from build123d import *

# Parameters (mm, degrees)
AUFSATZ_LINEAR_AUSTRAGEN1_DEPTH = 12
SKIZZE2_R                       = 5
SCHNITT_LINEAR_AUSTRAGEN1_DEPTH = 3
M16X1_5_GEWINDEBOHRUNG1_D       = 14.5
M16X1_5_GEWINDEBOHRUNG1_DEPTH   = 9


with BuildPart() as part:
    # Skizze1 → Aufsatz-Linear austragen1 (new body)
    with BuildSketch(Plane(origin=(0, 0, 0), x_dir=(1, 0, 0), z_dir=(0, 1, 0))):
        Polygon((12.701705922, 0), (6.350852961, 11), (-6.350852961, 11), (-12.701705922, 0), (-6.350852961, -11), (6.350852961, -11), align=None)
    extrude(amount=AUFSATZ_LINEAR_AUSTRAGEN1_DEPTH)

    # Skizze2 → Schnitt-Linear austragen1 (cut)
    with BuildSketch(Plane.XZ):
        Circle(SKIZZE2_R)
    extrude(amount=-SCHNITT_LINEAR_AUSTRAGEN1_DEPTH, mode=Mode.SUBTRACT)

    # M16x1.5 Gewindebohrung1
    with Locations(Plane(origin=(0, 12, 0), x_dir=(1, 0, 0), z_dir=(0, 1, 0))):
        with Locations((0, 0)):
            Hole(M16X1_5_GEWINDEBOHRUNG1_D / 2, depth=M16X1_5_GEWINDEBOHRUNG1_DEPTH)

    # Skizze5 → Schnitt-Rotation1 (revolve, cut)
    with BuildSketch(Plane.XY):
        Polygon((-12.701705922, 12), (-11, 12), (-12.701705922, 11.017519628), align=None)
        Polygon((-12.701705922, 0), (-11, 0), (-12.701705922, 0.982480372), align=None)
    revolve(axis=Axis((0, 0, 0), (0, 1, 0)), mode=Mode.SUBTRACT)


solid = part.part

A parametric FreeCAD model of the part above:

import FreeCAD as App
import Part
import Sketcher

V = App.Vector
Q = App.Units.Quantity

doc = App.newDocument("Part")
body = doc.addObject("PartDesign::Body", "Body")

# Sketch on XZ plane
sketch1 = body.newObject("Sketcher::SketchObject", "Sketch")
sketch1.AttachmentSupport = (doc.getObject("XZ_Plane"), [""])
sketch1.MapMode = "FlatFace"
sketch1.addGeometry([
    Part.LineSegment(V(12.701706, 0, 0), V(6.350853, -11, 0)),  # 0
    Part.LineSegment(V(6.350853, -11, 0), V(-6.350853, -11, 0)),  # 1
    Part.LineSegment(V(-6.350853, -11, 0), V(-12.701706, 0, 0)),  # 2
    Part.LineSegment(V(-12.701706, 0, 0), V(-6.350853, 11, 0)),  # 3
    Part.LineSegment(V(-6.350853, 11, 0), V(6.350853, 11, 0)),  # 4
    Part.LineSegment(V(6.350853, 11, 0), V(12.701706, 0, 0)),  # 5
], False)
sketch1.addConstraint([
    Sketcher.Constraint("Coincident", 0, 2, 1, 1),
    Sketcher.Constraint("Coincident", 1, 2, 2, 1),
    Sketcher.Constraint("Coincident", 2, 2, 3, 1),
    Sketcher.Constraint("Coincident", 3, 2, 4, 1),
    Sketcher.Constraint("Coincident", 4, 2, 5, 1),
    Sketcher.Constraint("Coincident", 5, 2, 0, 1),
    Sketcher.Constraint("Horizontal", 1),
    Sketcher.Constraint("Horizontal", 4),
    Sketcher.Constraint("Symmetric", 0, 2, 3, 2, -1, 1),
    Sketcher.Constraint("Symmetric", 2, 2, 5, 2, -1, 1),
    Sketcher.Constraint("PointOnObject", 2, 2, -1),
    Sketcher.Constraint("Parallel", 2, 5),
    Sketcher.Constraint("Vertical", 1, 2, 3, 2),
    Sketcher.Constraint("Angle", 0, Q("-120 deg")),
    Sketcher.Constraint("DistanceY", 0, 2, -1, 1, Q("11 mm")),
    Sketcher.Constraint("DistanceX", 1, 2, 1, 1, Q("12.701706 mm")),
])
pad1 = body.newObject("PartDesign::Pad", "Pad")
pad1.Profile = sketch1
pad1.Length = 12
pad1.Reversed = True

# Sketch on XZ plane
sketch2 = body.newObject("Sketcher::SketchObject", "Sketch001")
sketch2.AttachmentSupport = (doc.getObject("XZ_Plane"), [""])
sketch2.MapMode = "FlatFace"
sketch2.addGeometry(Part.Circle(V(0, 0, 0), V(0, 0, 1), 5), False)
sketch2.addConstraint([
    Sketcher.Constraint("Coincident", 0, 3, -1, 1),
    Sketcher.Constraint("Diameter", 0, Q("10 mm")),
])
pocket1 = body.newObject("PartDesign::Pocket", "Pocket")
pocket1.Profile = sketch2
pocket1.Length = 3

# Sketch on XZ plane
sketch3 = body.newObject("Sketcher::SketchObject", "Sketch002")
sketch3.AttachmentSupport = (doc.getObject("XZ_Plane"), [""])
sketch3.MapMode = "FlatFace"
sketch3.AttachmentOffset = App.Placement(V(0, 0, -12), App.Rotation())
sketch3.addGeometry(Part.Circle(V(0, 0, 0), V(0, 0, 1), 7.25), False)
sketch3.addConstraint([
    Sketcher.Constraint("Coincident", 0, 3, -1, 1),
    Sketcher.Constraint("Diameter", 0, Q("14.5 mm")),
])
doc.recompute()
hole = body.newObject("PartDesign::Hole", "Hole")
hole.Profile = sketch3
hole.ThreadType = "None"
hole.Diameter = 14.5
hole.DepthType = "Dimension"
hole.Depth = 9
hole.DrillPoint = "Flat"
hole.Reversed = True

# Sketch on XY plane
sketch4 = body.newObject("Sketcher::SketchObject", "Sketch003")
sketch4.AttachmentSupport = (doc.getObject("XY_Plane"), [""])
sketch4.MapMode = "FlatFace"
sketch4.addGeometry([
    Part.LineSegment(V(-11, 12, 0), V(-12.701706, 12, 0)),  # 0
    Part.LineSegment(V(-12.701706, 12, 0), V(-12.701706, 11.01752, 0)),  # 1
    Part.LineSegment(V(-12.701706, 11.01752, 0), V(-11, 12, 0)),  # 2
    Part.LineSegment(V(-12.701706, 0, 0), V(-11, 0, 0)),  # 3
    Part.LineSegment(V(-11, 0, 0), V(-12.701706, 0.98248, 0)),  # 4
    Part.LineSegment(V(-12.701706, 0.98248, 0), V(-12.701706, 0, 0)),  # 5
], False)
sketch4.addConstraint([
    Sketcher.Constraint("Coincident", 0, 2, 1, 1),
    Sketcher.Constraint("Coincident", 1, 2, 2, 1),
    Sketcher.Constraint("Coincident", 2, 2, 0, 1),
    Sketcher.Constraint("Coincident", 3, 2, 4, 1),
    Sketcher.Constraint("Coincident", 4, 2, 5, 1),
    Sketcher.Constraint("Coincident", 5, 2, 3, 1),
    Sketcher.Constraint("Horizontal", 0),
    Sketcher.Constraint("Vertical", 1),
    Sketcher.Constraint("Horizontal", 3),
    Sketcher.Constraint("Vertical", 5),
    Sketcher.Constraint("PointOnObject", 3, 2, -1),
    Sketcher.Constraint("Vertical", 2, 2, 3, 2),
    Sketcher.Constraint("Vertical", 1, 2, 4, 2),
    Sketcher.Constraint("Equal", 1, 5),
    Sketcher.Constraint("Angle", 2, Q("30 deg")),
    Sketcher.Constraint("DistanceY", -1, 1, 0, 2, Q("12 mm")),
    Sketcher.Constraint("DistanceX", 2, 2, -1, 1, Q("11 mm")),
    Sketcher.Constraint("DistanceY", 1, 2, 1, 1, Q("0.98248 mm")),
])
groove = body.newObject("PartDesign::Groove", "Groove")
groove.Profile = sketch4
groove.ReferenceAxis = (sketch4, ["V_Axis"])
groove.Angle = 360

doc.recompute()
